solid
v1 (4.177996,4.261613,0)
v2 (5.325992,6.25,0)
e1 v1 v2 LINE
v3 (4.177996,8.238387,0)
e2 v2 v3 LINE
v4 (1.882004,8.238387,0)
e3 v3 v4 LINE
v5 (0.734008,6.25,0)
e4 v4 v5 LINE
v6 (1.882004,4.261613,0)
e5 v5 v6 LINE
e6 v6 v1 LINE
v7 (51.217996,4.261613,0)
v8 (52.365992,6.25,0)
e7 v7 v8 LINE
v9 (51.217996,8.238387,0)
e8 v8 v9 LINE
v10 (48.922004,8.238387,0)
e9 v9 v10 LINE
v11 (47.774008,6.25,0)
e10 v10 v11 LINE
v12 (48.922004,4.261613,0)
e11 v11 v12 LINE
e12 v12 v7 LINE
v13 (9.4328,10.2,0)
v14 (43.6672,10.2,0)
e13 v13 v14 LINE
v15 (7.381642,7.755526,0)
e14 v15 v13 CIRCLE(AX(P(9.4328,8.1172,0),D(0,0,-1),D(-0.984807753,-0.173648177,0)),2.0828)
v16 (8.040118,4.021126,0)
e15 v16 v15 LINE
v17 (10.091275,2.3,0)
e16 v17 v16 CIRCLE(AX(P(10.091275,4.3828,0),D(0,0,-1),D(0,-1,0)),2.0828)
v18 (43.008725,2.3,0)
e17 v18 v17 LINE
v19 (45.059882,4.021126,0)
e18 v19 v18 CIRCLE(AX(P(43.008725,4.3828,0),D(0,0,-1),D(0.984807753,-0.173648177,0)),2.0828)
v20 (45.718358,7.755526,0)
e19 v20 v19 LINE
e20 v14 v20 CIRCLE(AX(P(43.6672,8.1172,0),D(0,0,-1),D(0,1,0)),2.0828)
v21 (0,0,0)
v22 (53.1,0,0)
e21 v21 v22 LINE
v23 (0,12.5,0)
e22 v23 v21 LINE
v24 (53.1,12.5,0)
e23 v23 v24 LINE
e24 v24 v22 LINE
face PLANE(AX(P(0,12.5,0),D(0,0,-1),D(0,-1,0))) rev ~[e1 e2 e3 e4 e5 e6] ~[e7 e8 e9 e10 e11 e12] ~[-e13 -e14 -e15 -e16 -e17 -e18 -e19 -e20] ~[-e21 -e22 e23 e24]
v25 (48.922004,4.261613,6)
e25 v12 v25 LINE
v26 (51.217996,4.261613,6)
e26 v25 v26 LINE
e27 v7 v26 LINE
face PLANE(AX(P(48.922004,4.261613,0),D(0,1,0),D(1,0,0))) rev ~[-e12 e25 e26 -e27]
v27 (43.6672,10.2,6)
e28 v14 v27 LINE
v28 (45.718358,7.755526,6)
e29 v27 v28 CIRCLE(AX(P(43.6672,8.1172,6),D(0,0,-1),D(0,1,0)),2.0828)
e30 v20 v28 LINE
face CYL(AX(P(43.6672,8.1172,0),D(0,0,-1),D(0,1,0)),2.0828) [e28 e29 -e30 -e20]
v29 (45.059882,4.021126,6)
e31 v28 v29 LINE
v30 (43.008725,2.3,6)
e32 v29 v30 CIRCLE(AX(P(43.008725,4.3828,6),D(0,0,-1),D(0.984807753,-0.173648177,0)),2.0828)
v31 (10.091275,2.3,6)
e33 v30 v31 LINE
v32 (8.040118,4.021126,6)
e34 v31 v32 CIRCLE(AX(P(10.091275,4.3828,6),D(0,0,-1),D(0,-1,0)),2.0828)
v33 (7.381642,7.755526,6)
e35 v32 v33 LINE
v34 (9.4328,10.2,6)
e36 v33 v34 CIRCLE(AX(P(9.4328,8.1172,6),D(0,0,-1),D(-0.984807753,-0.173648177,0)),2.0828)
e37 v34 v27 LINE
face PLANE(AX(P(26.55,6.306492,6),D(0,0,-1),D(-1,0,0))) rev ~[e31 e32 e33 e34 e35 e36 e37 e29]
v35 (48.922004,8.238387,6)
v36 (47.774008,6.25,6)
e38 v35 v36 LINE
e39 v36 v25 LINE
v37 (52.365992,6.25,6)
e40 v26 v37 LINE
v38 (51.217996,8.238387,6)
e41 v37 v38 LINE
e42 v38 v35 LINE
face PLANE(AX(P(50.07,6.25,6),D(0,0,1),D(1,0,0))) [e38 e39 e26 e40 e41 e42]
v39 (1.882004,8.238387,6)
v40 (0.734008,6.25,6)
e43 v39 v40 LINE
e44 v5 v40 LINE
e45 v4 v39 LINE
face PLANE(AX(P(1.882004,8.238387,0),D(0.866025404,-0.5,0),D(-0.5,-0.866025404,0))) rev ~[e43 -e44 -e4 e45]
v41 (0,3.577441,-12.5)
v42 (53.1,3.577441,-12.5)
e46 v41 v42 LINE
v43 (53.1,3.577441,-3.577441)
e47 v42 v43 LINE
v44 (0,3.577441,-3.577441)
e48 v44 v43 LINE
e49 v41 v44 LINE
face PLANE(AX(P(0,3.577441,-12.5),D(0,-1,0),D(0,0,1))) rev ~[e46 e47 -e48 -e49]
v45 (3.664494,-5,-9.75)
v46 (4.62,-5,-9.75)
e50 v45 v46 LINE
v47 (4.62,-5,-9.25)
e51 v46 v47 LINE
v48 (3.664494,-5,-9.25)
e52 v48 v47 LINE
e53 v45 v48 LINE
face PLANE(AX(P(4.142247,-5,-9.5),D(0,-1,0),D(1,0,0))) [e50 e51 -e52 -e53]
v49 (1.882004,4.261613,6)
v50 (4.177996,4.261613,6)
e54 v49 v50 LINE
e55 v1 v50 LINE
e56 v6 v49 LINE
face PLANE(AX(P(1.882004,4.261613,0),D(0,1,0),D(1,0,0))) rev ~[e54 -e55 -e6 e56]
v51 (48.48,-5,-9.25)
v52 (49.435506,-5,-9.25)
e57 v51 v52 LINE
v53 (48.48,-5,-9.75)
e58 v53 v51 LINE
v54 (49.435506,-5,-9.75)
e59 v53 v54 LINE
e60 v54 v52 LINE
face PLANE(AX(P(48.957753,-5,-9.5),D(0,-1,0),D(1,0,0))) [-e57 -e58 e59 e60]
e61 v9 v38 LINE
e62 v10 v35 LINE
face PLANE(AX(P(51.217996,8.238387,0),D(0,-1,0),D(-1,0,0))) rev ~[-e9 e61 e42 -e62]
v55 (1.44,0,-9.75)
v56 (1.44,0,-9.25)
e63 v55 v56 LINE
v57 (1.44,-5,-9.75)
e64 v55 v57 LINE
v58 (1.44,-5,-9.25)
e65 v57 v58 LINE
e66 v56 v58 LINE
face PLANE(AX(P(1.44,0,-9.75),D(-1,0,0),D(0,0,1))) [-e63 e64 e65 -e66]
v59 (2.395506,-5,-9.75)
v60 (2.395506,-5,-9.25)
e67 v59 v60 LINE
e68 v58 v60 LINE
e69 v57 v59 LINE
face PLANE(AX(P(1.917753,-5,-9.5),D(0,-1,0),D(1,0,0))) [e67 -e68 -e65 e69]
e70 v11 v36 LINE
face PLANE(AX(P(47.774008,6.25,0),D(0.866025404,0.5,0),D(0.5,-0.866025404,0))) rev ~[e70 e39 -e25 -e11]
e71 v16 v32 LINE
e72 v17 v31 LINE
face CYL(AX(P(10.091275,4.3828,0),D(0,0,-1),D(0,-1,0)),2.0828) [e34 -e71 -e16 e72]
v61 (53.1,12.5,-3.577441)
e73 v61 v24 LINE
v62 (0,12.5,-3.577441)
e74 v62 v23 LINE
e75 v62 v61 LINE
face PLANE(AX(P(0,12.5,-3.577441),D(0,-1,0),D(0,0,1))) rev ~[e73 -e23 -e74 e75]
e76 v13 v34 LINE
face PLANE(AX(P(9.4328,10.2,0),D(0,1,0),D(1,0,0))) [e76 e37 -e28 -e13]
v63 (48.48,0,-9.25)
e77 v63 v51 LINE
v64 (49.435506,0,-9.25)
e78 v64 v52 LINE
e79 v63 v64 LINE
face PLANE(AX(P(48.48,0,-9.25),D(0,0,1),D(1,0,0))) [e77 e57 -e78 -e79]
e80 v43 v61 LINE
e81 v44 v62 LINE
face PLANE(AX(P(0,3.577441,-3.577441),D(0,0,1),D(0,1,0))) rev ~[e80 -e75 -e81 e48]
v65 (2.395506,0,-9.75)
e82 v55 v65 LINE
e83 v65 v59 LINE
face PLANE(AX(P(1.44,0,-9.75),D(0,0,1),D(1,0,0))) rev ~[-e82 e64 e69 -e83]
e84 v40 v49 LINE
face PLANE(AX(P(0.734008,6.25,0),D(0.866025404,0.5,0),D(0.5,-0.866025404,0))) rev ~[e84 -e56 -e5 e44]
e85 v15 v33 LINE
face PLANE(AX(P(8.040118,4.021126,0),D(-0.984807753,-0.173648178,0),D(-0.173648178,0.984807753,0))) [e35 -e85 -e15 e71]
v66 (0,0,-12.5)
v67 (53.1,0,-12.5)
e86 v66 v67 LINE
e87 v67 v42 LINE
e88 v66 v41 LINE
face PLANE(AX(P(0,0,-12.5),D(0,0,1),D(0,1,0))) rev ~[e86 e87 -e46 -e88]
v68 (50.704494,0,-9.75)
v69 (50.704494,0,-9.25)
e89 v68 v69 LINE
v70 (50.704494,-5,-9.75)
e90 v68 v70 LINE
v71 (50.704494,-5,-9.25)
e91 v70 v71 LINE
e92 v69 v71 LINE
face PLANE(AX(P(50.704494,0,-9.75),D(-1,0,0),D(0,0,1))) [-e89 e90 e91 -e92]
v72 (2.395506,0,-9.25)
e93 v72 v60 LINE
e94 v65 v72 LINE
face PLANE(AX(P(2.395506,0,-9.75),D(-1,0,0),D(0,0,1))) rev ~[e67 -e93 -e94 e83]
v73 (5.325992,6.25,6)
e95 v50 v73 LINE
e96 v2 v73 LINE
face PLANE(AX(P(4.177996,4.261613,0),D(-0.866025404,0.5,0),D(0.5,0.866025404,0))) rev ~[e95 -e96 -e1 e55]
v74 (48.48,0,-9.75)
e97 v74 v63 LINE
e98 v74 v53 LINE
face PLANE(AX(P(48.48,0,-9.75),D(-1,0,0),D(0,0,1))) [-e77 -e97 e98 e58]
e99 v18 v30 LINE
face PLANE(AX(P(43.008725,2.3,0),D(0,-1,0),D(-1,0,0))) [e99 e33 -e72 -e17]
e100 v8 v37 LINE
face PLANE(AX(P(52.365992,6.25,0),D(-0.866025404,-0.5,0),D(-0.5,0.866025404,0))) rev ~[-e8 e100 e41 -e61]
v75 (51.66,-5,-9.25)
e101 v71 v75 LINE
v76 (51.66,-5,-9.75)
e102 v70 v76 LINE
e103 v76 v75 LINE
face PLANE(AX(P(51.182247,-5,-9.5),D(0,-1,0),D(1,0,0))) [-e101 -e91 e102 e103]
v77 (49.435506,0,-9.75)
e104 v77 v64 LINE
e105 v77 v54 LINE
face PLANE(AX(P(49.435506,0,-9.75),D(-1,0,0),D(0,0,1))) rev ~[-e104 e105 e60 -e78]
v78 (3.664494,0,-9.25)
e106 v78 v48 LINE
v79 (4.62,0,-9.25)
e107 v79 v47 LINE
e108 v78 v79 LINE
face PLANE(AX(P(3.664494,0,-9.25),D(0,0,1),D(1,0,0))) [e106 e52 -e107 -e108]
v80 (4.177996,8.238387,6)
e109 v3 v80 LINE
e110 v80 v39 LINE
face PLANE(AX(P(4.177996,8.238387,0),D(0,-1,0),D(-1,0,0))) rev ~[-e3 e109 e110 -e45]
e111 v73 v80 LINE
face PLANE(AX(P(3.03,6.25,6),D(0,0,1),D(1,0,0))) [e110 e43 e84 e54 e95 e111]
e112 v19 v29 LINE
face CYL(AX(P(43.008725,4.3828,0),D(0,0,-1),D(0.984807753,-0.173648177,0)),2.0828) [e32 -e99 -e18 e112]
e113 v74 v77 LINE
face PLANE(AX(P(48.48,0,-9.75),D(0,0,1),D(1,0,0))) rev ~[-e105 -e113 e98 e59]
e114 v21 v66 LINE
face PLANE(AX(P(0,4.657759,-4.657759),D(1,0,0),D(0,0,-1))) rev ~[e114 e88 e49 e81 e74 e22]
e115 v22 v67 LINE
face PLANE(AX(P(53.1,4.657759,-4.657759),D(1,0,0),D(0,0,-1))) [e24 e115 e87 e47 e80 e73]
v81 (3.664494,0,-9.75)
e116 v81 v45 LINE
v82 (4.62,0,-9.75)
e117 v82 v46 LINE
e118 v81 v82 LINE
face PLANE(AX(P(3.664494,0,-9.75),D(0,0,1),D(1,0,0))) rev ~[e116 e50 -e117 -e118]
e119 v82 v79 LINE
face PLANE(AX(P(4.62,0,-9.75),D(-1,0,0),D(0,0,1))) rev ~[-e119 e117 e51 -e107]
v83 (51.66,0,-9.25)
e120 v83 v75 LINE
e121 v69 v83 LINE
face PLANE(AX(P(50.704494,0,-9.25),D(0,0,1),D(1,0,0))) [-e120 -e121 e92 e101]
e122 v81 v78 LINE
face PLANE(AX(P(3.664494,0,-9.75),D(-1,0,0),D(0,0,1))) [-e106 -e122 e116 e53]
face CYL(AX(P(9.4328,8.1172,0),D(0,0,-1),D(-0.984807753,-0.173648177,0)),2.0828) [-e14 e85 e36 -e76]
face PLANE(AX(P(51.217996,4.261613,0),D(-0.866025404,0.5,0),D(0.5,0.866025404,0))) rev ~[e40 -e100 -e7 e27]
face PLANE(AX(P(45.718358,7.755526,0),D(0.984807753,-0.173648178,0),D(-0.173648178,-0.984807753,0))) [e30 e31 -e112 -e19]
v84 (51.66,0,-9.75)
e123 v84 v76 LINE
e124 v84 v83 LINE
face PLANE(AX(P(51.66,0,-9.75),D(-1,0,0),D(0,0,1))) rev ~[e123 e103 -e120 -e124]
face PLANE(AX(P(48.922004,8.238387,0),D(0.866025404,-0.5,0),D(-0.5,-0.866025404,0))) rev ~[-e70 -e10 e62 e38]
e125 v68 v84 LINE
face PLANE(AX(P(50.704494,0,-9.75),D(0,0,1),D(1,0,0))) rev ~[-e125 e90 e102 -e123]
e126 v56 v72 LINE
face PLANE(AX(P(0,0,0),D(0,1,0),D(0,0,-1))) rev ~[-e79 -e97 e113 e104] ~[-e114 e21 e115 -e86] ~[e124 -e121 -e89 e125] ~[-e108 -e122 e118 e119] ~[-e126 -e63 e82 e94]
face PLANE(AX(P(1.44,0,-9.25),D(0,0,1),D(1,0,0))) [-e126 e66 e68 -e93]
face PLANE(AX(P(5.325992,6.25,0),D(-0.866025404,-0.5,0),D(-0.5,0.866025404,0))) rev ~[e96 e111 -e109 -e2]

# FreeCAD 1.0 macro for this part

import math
import FreeCAD as App
import Part
import Sketcher
from FreeCAD import Vector
Q = App.Units.Quantity

doc = App.newDocument("Part")
body = doc.addObject("PartDesign::Body", "Body")

# Sketch on YZ plane
sketch1 = body.newObject("Sketcher::SketchObject", "Sketch")
sketch1.AttachmentSupport = (doc.getObject("YZ_Plane"), [""])
sketch1.MapMode = "FlatFace"
sketch1.addGeometry([
    Part.LineSegment(Vector(0, 0, 0), Vector(0, -12.5, 0)),  # 0
    Part.LineSegment(Vector(0, -12.5, 0), Vector(3.6, -12.5, 0)),  # 1
    Part.LineSegment(Vector(3.6, -12.5, 0), Vector(3.6, -3.6, 0)),  # 2
    Part.LineSegment(Vector(3.6, -3.6, 0), Vector(12.5, -3.6, 0)),  # 3
    Part.LineSegment(Vector(12.5, -3.6, 0), Vector(12.5, 0, 0)),  # 4
    Part.LineSegment(Vector(12.5, 0, 0), Vector(0, 0, 0)),  # 5
], False)
sketch1.addConstraint([
    Sketcher.Constraint("Coincident", 0, 2, 1, 1),
    Sketcher.Constraint("Coincident", 1, 2, 2, 1),
    Sketcher.Constraint("Coincident", 2, 2, 3, 1),
    Sketcher.Constraint("Coincident", 3, 2, 4, 1),
    Sketcher.Constraint("Coincident", 4, 2, 5, 1),
    Sketcher.Constraint("Coincident", 5, 2, 0, 1),
    Sketcher.Constraint("Vertical", 0),
    Sketcher.Constraint("Horizontal", 1),
    Sketcher.Constraint("Vertical", 2),
    Sketcher.Constraint("Horizontal", 3),
    Sketcher.Constraint("Vertical", 4),
    Sketcher.Constraint("Horizontal", 5),
    Sketcher.Constraint("Coincident", 5, 2, -1, 1),
    Sketcher.Constraint("Equal", 5, 0),
    Sketcher.Constraint("Equal", 3, 2),
    Sketcher.Constraint("DistanceX", 5, 2, 5, 1, Q("12.5 mm")),
    Sketcher.Constraint("DistanceX", 1, 1, 1, 2, Q("3.577441 mm")),
])
pad1 = body.newObject("PartDesign::Pad", "Pad")
pad1.Profile = sketch1
pad1.Length = 53.1

# Sketch on XY plane
sketch2 = body.newObject("Sketcher::SketchObject", "Sketch001")
sketch2.AttachmentSupport = (doc.getObject("XY_Plane"), [""])
sketch2.MapMode = "FlatFace"
sketch2.addGeometry([
    Part.LineSegment(Vector(43.7, 10.2, 0), Vector(9.4, 10.2, 0)),  # 0
    Part.ArcOfCircle(Part.Circle(Vector(9.4, 8.1, 0), Vector(0, 0, 1), 2.1), math.radians(90), math.radians(190)),  # 1
    Part.LineSegment(Vector(7.4, 7.8, 0), Vector(8, 4, 0)),  # 2
    Part.ArcOfCircle(Part.Circle(Vector(10.1, 4.4, 0), Vector(0, 0, 1), 2.1), math.radians(-170), math.radians(-90)),  # 3
    Part.LineSegment(Vector(10.1, 2.3, 0), Vector(43, 2.3, 0)),  # 4
    Part.ArcOfCircle(Part.Circle(Vector(43, 4.4, 0), Vector(0, 0, 1), 2.1), math.radians(-90), math.radians(-10)),  # 5
    Part.LineSegment(Vector(45.1, 4, 0), Vector(45.7, 7.8, 0)),  # 6
    Part.ArcOfCircle(Part.Circle(Vector(43.7, 8.1, 0), Vector(0, 0, 1), 2.1), math.radians(-10), math.radians(90)),  # 7
], False)
sketch2.addConstraint([
    Sketcher.Constraint("Tangent", 0, 2, 1, 1),
    Sketcher.Constraint("Tangent", 1, 2, 2, 1),
    Sketcher.Constraint("Tangent", 2, 2, 3, 1),
    Sketcher.Constraint("Tangent", 3, 2, 4, 1),
    Sketcher.Constraint("Tangent", 4, 2, 5, 1),
    Sketcher.Constraint("Tangent", 5, 2, 6, 1),
    Sketcher.Constraint("Tangent", 6, 2, 7, 1),
    Sketcher.Constraint("Tangent", 7, 2, 0, 1),
    Sketcher.Constraint("Horizontal", 0),
    Sketcher.Constraint("Horizontal", 4),
    Sketcher.Constraint("Equal", 1, 3),
    Sketcher.Constraint("Equal", 3, 5),
    Sketcher.Constraint("Equal", 5, 7),
    Sketcher.Constraint("Horizontal", 2, 2, 5, 2),
    Sketcher.Constraint("Angle", 2, Q("-80 deg")),
    Sketcher.Constraint("DistanceY", -1, 1, 0, 2, Q("10.2 mm")),
    Sketcher.Constraint("DistanceY", -1, 1, 3, 2, Q("2.3 mm")),
    Sketcher.Constraint("Radius", 1, Q("2.0828 mm")),
    Sketcher.Constraint("DistanceX", 0, 2, 0, 1, Q("34.2344 mm")),
    Sketcher.Constraint("DistanceX", -1, 1, 1, 3, Q("9.4328 mm")),
])
pad2 = body.newObject("PartDesign::Pad", "Pad001")
pad2.Profile = sketch2
pad2.Length = 6

# Sketch on XZ plane
sketch3 = body.newObject("Sketcher::SketchObject", "Sketch002")
sketch3.AttachmentSupport = (doc.getObject("XZ_Plane"), [""])
sketch3.MapMode = "FlatFace"
sketch3.addGeometry([
    Part.LineSegment(Vector(1.4, -9.2, 0), Vector(1.4, -9.8, 0)),  # 0
    Part.LineSegment(Vector(1.4, -9.8, 0), Vector(2.4, -9.8, 0)),  # 1
    Part.LineSegment(Vector(2.4, -9.8, 0), Vector(2.4, -9.2, 0)),  # 2
    Part.LineSegment(Vector(2.4, -9.2, 0), Vector(1.4, -9.2, 0)),  # 3
    Part.LineSegment(Vector(3.7, -9.2, 0), Vector(3.7, -9.8, 0)),  # 4
    Part.LineSegment(Vector(3.7, -9.8, 0), Vector(4.6, -9.8, 0)),  # 5
    Part.LineSegment(Vector(4.6, -9.8, 0), Vector(4.6, -9.2, 0)),  # 6
    Part.LineSegment(Vector(4.6, -9.2, 0), Vector(3.7, -9.2, 0)),  # 7
    Part.LineSegment(Vector(48.5, -9.2, 0), Vector(48.5, -9.8, 0)),  # 8
    Part.LineSegment(Vector(48.5, -9.8, 0), Vector(49.4, -9.8, 0)),  # 9
    Part.LineSegment(Vector(49.4, -9.8, 0), Vector(49.4, -9.2, 0)),  # 10
    Part.LineSegment(Vector(49.4, -9.2, 0), Vector(48.5, -9.2, 0)),  # 11
    Part.LineSegment(Vector(50.7, -9.2, 0), Vector(50.7, -9.8, 0)),  # 12
    Part.LineSegment(Vector(50.7, -9.8, 0), Vector(51.7, -9.8, 0)),  # 13
    Part.LineSegment(Vector(51.7, -9.8, 0), Vector(51.7, -9.2, 0)),  # 14
    Part.LineSegment(Vector(51.7, -9.2, 0), Vector(50.7, -9.2, 0)),  # 15
], False)
sketch3.addConstraint([
    Sketcher.Constraint("Coincident", 0, 2, 1, 1),
    Sketcher.Constraint("Coincident", 1, 2, 2, 1),
    Sketcher.Constraint("Coincident", 2, 2, 3, 1),
    Sketcher.Constraint("Coincident", 3, 2, 0, 1),
    Sketcher.Constraint("Coincident", 4, 2, 5, 1),
    Sketcher.Constraint("Coincident", 5, 2, 6, 1),
    Sketcher.Constraint("Coincident", 6, 2, 7, 1),
    Sketcher.Constraint("Coincident", 7, 2, 4, 1),
    Sketcher.Constraint("Coincident", 8, 2, 9, 1),
    Sketcher.Constraint("Coincident", 9, 2, 10, 1),
    Sketcher.Constraint("Coincident", 10, 2, 11, 1),
    Sketcher.Constraint("Coincident", 11, 2, 8, 1),
    Sketcher.Constraint("Coincident", 12, 2, 13, 1),
    Sketcher.Constraint("Coincident", 13, 2, 14, 1),
    Sketcher.Constraint("Coincident", 14, 2, 15, 1),
    Sketcher.Constraint("Coincident", 15, 2, 12, 1),
    Sketcher.Constraint("Vertical", 0),
    Sketcher.Constraint("Horizontal", 1),
    Sketcher.Constraint("Vertical", 2),
    Sketcher.Constraint("Horizontal", 3),
    Sketcher.Constraint("Vertical", 4),
    Sketcher.Constraint("Horizontal", 5),
    Sketcher.Constraint("Vertical", 6),
    Sketcher.Constraint("Horizontal", 7),
    Sketcher.Constraint("Vertical", 8),
    Sketcher.Constraint("Horizontal", 9),
    Sketcher.Constraint("Vertical", 10),
    Sketcher.Constraint("Horizontal", 11),
    Sketcher.Constraint("Vertical", 12),
    Sketcher.Constraint("Horizontal", 13),
    Sketcher.Constraint("Vertical", 14),
    Sketcher.Constraint("Horizontal", 15),
    Sketcher.Constraint("Horizontal", 1, 2, 4, 2),
    Sketcher.Constraint("Horizontal", 3, 2, 6, 2),
    Sketcher.Constraint("Horizontal", 5, 2, 8, 2),
    Sketcher.Constraint("Horizontal", 7, 2, 10, 2),
    Sketcher.Constraint("Horizontal", 9, 2, 12, 2),
    Sketcher.Constraint("Horizontal", 11, 2, 14, 2),
    Sketcher.Constraint("Equal", 3, 5),
    Sketcher.Constraint("Equal", 7, 9),
    Sketcher.Constraint("Equal", 11, 13),
    Sketcher.Constraint("DistanceY", 0, 2, 0, 1, Q("0.5 mm")),
    Sketcher.Constraint("DistanceX", -1, 1, 0, 2, Q("1.44 mm")),
    Sketcher.Constraint("DistanceY", 0, 2, -1, 1, Q("9.75 mm")),
    Sketcher.Constraint("DistanceX", -1, 1, 5, 2, Q("4.62 mm")),
    Sketcher.Constraint("DistanceX", -1, 1, 8, 2, Q("48.48 mm")),
    Sketcher.Constraint("DistanceX", -1, 1, 13, 2, Q("51.66 mm")),
    Sketcher.Constraint("DistanceX", 1, 1, 1, 2, Q("0.955506 mm")),
])
pad3 = body.newObject("PartDesign::Pad", "Pad002")
pad3.Profile = sketch3
pad3.Length = 5

# Sketch on XY plane
sketch4 = body.newObject("Sketcher::SketchObject", "Sketch003")
sketch4.AttachmentSupport = (doc.getObject("XY_Plane"), [""])
sketch4.MapMode = "FlatFace"
sketch4.addGeometry([
    Part.LineSegment(Vector(4.2, 4.3, 0), Vector(5.3, 6.2, 0)),  # 0
    Part.LineSegment(Vector(5.3, 6.2, 0), Vector(4.2, 8.2, 0)),  # 1
    Part.LineSegment(Vector(4.2, 8.2, 0), Vector(1.9, 8.2, 0)),  # 2
    Part.LineSegment(Vector(1.9, 8.2, 0), Vector(0.7, 6.2, 0)),  # 3
    Part.LineSegment(Vector(0.7, 6.2, 0), Vector(1.9, 4.3, 0)),  # 4
    Part.LineSegment(Vector(1.9, 4.3, 0), Vector(4.2, 4.3, 0)),  # 5
    Part.LineSegment(Vector(51.2, 4.3, 0), Vector(52.4, 6.2, 0)),  # 6
    Part.LineSegment(Vector(52.4, 6.2, 0), Vector(51.2, 8.2, 0)),  # 7
    Part.LineSegment(Vector(51.2, 8.2, 0), Vector(48.9, 8.2, 0)),  # 8
    Part.LineSegment(Vector(48.9, 8.2, 0), Vector(47.8, 6.2, 0)),  # 9
    Part.LineSegment(Vector(47.8, 6.2, 0), Vector(48.9, 4.3, 0)),  # 10
    Part.LineSegment(Vector(48.9, 4.3, 0), Vector(51.2, 4.3, 0)),  # 11
], False)
sketch4.addConstraint([
    Sketcher.Constraint("Coincident", 0, 2, 1, 1),
    Sketcher.Constraint("Coincident", 1, 2, 2, 1),
    Sketcher.Constraint("Coincident", 2, 2, 3, 1),
    Sketcher.Constraint("Coincident", 3, 2, 4, 1),
    Sketcher.Constraint("Coincident", 4, 2, 5, 1),
    Sketcher.Constraint("Coincident", 5, 2, 0, 1),
    Sketcher.Constraint("Coincident", 6, 2, 7, 1),
    Sketcher.Constraint("Coincident", 7, 2, 8, 1),
    Sketcher.Constraint("Coincident", 8, 2, 9, 1),
    Sketcher.Constraint("Coincident", 9, 2, 10, 1),
    Sketcher.Constraint("Coincident", 10, 2, 11, 1),
    Sketcher.Constraint("Coincident", 11, 2, 6, 1),
    Sketcher.Constraint("Horizontal", 2),
    Sketcher.Constraint("Horizontal", 5),
    Sketcher.Constraint("Horizontal", 8),
    Sketcher.Constraint("Horizontal", 11),
    Sketcher.Constraint("Parallel", 0, 3),
    Sketcher.Constraint("Parallel", 1, 4),
    Sketcher.Constraint("Parallel", 3, 6),
    Sketcher.Constraint("Parallel", 4, 7),
    Sketcher.Constraint("Parallel", 6, 9),
    Sketcher.Constraint("Parallel", 7, 10),
    Sketcher.Constraint("Horizontal", 0, 2, 3, 2),
    Sketcher.Constraint("Horizontal", 3, 2, 6, 2),
    Sketcher.Constraint("Horizontal", 2, 2, 7, 2),
    Sketcher.Constraint("Horizontal", 6, 2, 9, 2),
    Sketcher.Constraint("Horizontal", 5, 2, 10, 2),
    Sketcher.Constraint("Vertical", 2, 2, 4, 2),
    Sketcher.Constraint("Vertical", 1, 2, 5, 2),
    Sketcher.Constraint("Equal", 5, 8),
    Sketcher.Constraint("Angle", 0, Q("60 deg")),
    Sketcher.Constraint("DistanceY", -1, 1, 0, 2, Q("6.25 mm")),
    Sketcher.Constraint("DistanceX", 0, 2, 6, 2, Q("47.04 mm")),
    Sketcher.Constraint("DistanceX", 2, 2, 2, 1, Q("2.295992 mm")),
    Sketcher.Constraint("Distance", 0, Q("2.295992 mm")),
    Sketcher.Constraint("DistanceX", -1, 1, 0, 2, Q("5.325992 mm")),
])
pad4 = body.newObject("PartDesign::Pad", "Pad003")
pad4.Profile = sketch4
pad4.Length = 6

doc.recompute()
